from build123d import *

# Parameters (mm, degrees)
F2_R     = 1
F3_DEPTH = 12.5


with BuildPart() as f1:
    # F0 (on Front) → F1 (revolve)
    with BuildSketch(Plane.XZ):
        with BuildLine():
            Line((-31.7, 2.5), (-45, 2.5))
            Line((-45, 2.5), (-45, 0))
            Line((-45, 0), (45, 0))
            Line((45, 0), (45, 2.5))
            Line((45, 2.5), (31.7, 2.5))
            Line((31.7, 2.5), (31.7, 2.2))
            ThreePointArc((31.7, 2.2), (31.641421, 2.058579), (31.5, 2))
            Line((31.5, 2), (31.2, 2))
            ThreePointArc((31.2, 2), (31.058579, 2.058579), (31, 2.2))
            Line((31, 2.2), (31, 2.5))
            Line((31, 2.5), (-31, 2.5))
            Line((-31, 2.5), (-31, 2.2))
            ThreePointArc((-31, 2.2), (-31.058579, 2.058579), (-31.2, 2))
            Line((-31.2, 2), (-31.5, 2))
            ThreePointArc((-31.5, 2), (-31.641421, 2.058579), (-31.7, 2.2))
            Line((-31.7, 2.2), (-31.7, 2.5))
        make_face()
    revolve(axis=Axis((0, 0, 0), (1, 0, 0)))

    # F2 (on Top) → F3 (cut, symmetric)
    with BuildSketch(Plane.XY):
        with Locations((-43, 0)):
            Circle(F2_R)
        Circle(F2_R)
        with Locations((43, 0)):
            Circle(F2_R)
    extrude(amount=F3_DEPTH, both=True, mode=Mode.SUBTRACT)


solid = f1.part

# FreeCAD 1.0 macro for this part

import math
import FreeCAD as App
import Part
import Sketcher

V = App.Vector
Q = App.Units.Quantity

doc = App.newDocument("Part")
params = doc.addObject("Spreadsheet::Sheet", "Params")
for row, (alias, value) in enumerate([
    ("sketch1_radius", "0.200001 mm"),
    ("sketch1_width", "90 mm"),
    ("sketch1_width2", "62 mm"),
    ("sketch1_width3", "13.3 mm"),
    ("sketch1_width4", "0.3 mm"),
    ("revolution_angle", "360 deg"),
    ("sketch2_diameter", "2 mm"),
    ("pocket1_length", "25 mm"),
], start=1):
    params.set(f"A{row}", alias)
    params.set(f"B{row}", "=" + value)
    params.setAlias(f"B{row}", alias)

body = doc.addObject("PartDesign::Body", "Body")

sketch1 = body.newObject("Sketcher::SketchObject", "Sketch")
sketch1.AttachmentSupport = (doc.getObject("XZ_Plane"), [""])
sketch1.MapMode = "FlatFace"
sketch1.addGeometry(Part.LineSegment(V(-31.7, 2.5, 0), V(-45, 2.5, 0)), False)
sketch1.addGeometry(Part.LineSegment(V(-45, 2.5, 0), V(-45, 0, 0)), False)
sketch1.addGeometry(Part.LineSegment(V(-45, 0, 0), V(45, 0, 0)), False)
sketch1.addGeometry(Part.LineSegment(V(45, 0, 0), V(45, 2.5, 0)), False)
sketch1.addGeometry(Part.LineSegment(V(45, 2.5, 0), V(31.7, 2.5, 0)), False)
sketch1.addGeometry(Part.LineSegment(V(31.7, 2.5, 0), V(31.7, 2.2, 0)), False)
sketch1.addGeometry(Part.ArcOfCircle(Part.Circle(V(31.5, 2.2, 0), V(0, 0, 1), 0.2), math.radians(-90), math.radians(0)), False)
sketch1.addGeometry(Part.LineSegment(V(31.5, 2, 0), V(31.2, 2, 0)), False)
sketch1.addGeometry(Part.ArcOfCircle(Part.Circle(V(31.2, 2.2, 0), V(0, 0, 1), 0.2), math.radians(-180), math.radians(-90)), False)
sketch1.addGeometry(Part.LineSegment(V(31, 2.2, 0), V(31, 2.5, 0)), False)
sketch1.addGeometry(Part.LineSegment(V(31, 2.5, 0), V(-31, 2.5, 0)), False)
sketch1.addGeometry(Part.LineSegment(V(-31, 2.5, 0), V(-31, 2.2, 0)), False)
sketch1.addGeometry(Part.ArcOfCircle(Part.Circle(V(-31.2, 2.2, 0), V(0, 0, 1), 0.2), math.radians(-90), math.radians(0)), False)
sketch1.addGeometry(Part.LineSegment(V(-31.2, 2, 0), V(-31.5, 2, 0)), False)
sketch1.addGeometry(Part.ArcOfCircle(Part.Circle(V(-31.5, 2.2, 0), V(0, 0, 1), 0.2), math.radians(-180), math.radians(-90)), False)
sketch1.addGeometry(Part.LineSegment(V(-31.7, 2.2, 0), V(-31.7, 2.5, 0)), False)
sketch1.addConstraint(Sketcher.Constraint("Coincident", 0, 2, 1, 1))
sketch1.addConstraint(Sketcher.Constraint("Coincident", 1, 2, 2, 1))
sketch1.addConstraint(Sketcher.Constraint("Coincident", 2, 2, 3, 1))
sketch1.addConstraint(Sketcher.Constraint("Coincident", 3, 2, 4, 1))
sketch1.addConstraint(Sketcher.Constraint("Coincident", 4, 2, 5, 1))
sketch1.addConstraint(Sketcher.Constraint("Coincident", 5, 2, 6, 2))
sketch1.addConstraint(Sketcher.Constraint("Coincident", 6, 1, 7, 1))
sketch1.addConstraint(Sketcher.Constraint("Coincident", 7, 2, 8, 2))
sketch1.addConstraint(Sketcher.Constraint("Coincident", 8, 1, 9, 1))
sketch1.addConstraint(Sketcher.Constraint("Coincident", 9, 2, 10, 1))
sketch1.addConstraint(Sketcher.Constraint("Coincident", 10, 2, 11, 1))
sketch1.addConstraint(Sketcher.Constraint("Coincident", 11, 2, 12, 2))
sketch1.addConstraint(Sketcher.Constraint("Coincident", 12, 1, 13, 1))
sketch1.addConstraint(Sketcher.Constraint("Coincident", 13, 2, 14, 2))
sketch1.addConstraint(Sketcher.Constraint("Coincident", 14, 1, 15, 1))
sketch1.addConstraint(Sketcher.Constraint("Coincident", 15, 2, 0, 1))
sketch1.addConstraint(Sketcher.Constraint("Horizontal", 0))
sketch1.addConstraint(Sketcher.Constraint("Vertical", 1))
sketch1.addConstraint(Sketcher.Constraint("Horizontal", 2))
sketch1.addConstraint(Sketcher.Constraint("Vertical", 3))
sketch1.addConstraint(Sketcher.Constraint("Horizontal", 4))
sketch1.addConstraint(Sketcher.Constraint("Vertical", 5))
sketch1.addConstraint(Sketcher.Constraint("Horizontal", 7))
sketch1.addConstraint(Sketcher.Constraint("Vertical", 9))
sketch1.addConstraint(Sketcher.Constraint("Horizontal", 10))
sketch1.addConstraint(Sketcher.Constraint("Vertical", 11))
sketch1.addConstraint(Sketcher.Constraint("Horizontal", 13))
sketch1.addConstraint(Sketcher.Constraint("Vertical", 15))
sketch1.addConstraint(Sketcher.Constraint("Equal", 6, 8))
sketch1.addConstraint(Sketcher.Constraint("Equal", 8, 12))
sketch1.addConstraint(Sketcher.Constraint("Equal", 12, 14))
sketch1.addConstraint(Sketcher.Constraint("Symmetric", 1, 2, 2, 2, -1, 1))
sketch1.addConstraint(Sketcher.Constraint("Symmetric", 8, 3, 12, 3, -2))
sketch1.addConstraint(Sketcher.Constraint("Symmetric", 5, 2, 14, 1, -2))
sketch1.addConstraint(Sketcher.Constraint("Horizontal", 0, 2, 3, 2))
sketch1.addConstraint(Sketcher.Constraint("Horizontal", 14, 3, 5, 2))
sketch1.addConstraint(Sketcher.Constraint("Horizontal", 5, 2, 8, 1))
sketch1.addConstraint(Sketcher.Constraint("Horizontal", 4, 2, 9, 2))
sketch1.addConstraint(Sketcher.Constraint("Horizontal", 8, 1, 11, 2))
sketch1.addConstraint(Sketcher.Constraint("Vertical", 8, 3, 7, 2))
sketch1.addConstraint(Sketcher.Constraint("Vertical", 14, 3, 13, 2))
sketch1.addConstraint(Sketcher.Constraint("Equal", 7, 13))
sketch1.addConstraint(Sketcher.Constraint("Equal", 13, 5))
sketch1.addConstraint(Sketcher.Constraint("Radius", 6, Q("0.200001 mm")))
sketch1.addConstraint(Sketcher.Constraint("DistanceX", 2, 1, 2, 2, Q("90 mm")))
sketch1.addConstraint(Sketcher.Constraint("DistanceX", 10, 2, 10, 1, Q("62 mm")))
sketch1.addConstraint(Sketcher.Constraint("DistanceX", 0, 2, 0, 1, Q("13.3 mm")))
sketch1.addConstraint(Sketcher.Constraint("DistanceX", 7, 2, 7, 1, Q("0.3 mm")))
sketch1.addConstraint(Sketcher.Constraint("DistanceY", 1, 2, 1, 1, Q("2.5 mm")))
sketch1.setExpression("Constraints[43]", "Params.sketch1_radius")
sketch1.setExpression("Constraints[44]", "Params.sketch1_width")
sketch1.setExpression("Constraints[45]", "Params.sketch1_width2")
sketch1.setExpression("Constraints[46]", "Params.sketch1_width3")
sketch1.setExpression("Constraints[47]", "Params.sketch1_width4")
revolution = body.newObject("PartDesign::Revolution", "Revolution")
revolution.Profile = sketch1
revolution.ReferenceAxis = (sketch1, ["H_Axis"])
revolution.setExpression("Angle", "Params.revolution_angle")

sketch2 = body.newObject("Sketcher::SketchObject", "Sketch001")
sketch2.AttachmentSupport = (doc.getObject("XY_Plane"), [""])
sketch2.MapMode = "FlatFace"
sketch2.addGeometry(Part.Circle(V(-43, 0, 0), V(0, 0, 1), 1), False)
sketch2.addGeometry(Part.Circle(V(0, 0, 0), V(0, 0, 1), 1), False)
sketch2.addGeometry(Part.Circle(V(43, 0, 0), V(0, 0, 1), 1), False)
sketch2.addConstraint(Sketcher.Constraint("Coincident", 1, 3, -1, 1))
sketch2.addConstraint(Sketcher.Constraint("Equal", 0, 1))
sketch2.addConstraint(Sketcher.Constraint("Equal", 1, 2))
sketch2.addConstraint(Sketcher.Constraint("Symmetric", 0, 3, 2, 3, -1, 1))
sketch2.addConstraint(Sketcher.Constraint("PointOnObject", 0, 3, -1))
sketch2.addConstraint(Sketcher.Constraint("Diameter", 0, Q("2 mm")))
sketch2.addConstraint(Sketcher.Constraint("DistanceX", 0, 3, -1, 1, Q("43 mm")))
sketch2.setExpression("Constraints[5]", "Params.sketch2_diameter")
pocket1 = body.newObject("PartDesign::Pocket", "Pocket")
pocket1.Profile = sketch2
pocket1.setExpression("Length", "Params.pocket1_length")
pocket1.Midplane = True

doc.recompute()
